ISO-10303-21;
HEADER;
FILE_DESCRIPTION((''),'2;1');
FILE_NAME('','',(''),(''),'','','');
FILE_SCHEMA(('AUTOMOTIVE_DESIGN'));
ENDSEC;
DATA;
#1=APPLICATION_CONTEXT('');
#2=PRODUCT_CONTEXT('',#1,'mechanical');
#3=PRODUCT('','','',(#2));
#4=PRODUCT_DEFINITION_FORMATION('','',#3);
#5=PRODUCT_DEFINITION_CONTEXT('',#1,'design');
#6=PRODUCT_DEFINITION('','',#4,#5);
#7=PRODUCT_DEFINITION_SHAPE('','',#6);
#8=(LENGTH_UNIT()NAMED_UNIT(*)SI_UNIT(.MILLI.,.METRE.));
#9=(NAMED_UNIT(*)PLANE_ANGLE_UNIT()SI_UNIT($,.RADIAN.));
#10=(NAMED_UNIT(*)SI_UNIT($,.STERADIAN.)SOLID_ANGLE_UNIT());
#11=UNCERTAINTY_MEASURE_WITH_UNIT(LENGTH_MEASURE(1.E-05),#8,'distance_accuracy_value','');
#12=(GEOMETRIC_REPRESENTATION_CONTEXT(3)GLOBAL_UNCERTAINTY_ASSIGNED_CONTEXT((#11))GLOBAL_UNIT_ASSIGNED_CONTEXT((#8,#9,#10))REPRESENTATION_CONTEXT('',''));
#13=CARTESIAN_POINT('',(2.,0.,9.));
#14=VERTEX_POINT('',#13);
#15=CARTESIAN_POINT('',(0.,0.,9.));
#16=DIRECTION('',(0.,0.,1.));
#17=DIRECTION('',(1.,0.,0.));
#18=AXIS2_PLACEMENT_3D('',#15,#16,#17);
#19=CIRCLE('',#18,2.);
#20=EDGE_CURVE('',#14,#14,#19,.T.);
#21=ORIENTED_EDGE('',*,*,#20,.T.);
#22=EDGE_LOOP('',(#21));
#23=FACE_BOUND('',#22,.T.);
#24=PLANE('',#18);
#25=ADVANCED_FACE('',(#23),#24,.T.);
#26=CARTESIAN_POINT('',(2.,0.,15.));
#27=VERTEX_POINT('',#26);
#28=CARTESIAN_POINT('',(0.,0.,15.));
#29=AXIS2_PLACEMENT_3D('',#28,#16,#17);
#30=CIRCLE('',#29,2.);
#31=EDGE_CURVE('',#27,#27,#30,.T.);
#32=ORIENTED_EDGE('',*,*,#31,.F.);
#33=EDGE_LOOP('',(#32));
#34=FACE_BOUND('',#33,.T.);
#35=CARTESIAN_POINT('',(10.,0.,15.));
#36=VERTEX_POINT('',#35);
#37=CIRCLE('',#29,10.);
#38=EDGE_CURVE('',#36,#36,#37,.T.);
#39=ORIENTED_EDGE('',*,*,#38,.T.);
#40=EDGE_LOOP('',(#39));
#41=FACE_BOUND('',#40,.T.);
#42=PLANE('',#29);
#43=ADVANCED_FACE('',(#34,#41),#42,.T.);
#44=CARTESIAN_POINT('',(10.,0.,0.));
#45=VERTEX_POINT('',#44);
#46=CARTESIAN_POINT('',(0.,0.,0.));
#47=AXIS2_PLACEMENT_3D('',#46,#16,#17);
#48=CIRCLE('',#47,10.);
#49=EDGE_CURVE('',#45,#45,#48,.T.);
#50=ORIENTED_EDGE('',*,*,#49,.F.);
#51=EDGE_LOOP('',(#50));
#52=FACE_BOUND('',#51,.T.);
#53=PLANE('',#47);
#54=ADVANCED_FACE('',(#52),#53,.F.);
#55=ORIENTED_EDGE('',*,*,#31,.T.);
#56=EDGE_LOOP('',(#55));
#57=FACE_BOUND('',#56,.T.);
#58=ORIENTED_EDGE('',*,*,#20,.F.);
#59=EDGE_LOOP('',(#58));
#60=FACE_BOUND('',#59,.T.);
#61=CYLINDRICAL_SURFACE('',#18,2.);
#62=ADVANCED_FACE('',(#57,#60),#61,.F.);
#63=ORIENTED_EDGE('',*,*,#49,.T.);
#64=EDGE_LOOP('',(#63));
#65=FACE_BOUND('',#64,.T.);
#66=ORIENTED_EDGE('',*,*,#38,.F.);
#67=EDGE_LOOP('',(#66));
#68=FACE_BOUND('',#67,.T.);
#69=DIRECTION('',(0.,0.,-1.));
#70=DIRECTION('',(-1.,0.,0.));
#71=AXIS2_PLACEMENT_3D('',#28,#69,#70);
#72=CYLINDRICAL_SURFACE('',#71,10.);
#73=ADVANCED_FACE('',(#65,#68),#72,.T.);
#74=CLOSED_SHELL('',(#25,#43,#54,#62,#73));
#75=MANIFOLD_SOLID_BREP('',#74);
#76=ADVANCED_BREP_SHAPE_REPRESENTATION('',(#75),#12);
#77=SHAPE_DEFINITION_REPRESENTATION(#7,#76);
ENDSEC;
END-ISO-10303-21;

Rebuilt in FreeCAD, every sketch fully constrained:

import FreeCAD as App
import Part
import Sketcher
from FreeCAD import Vector

doc = App.newDocument("Part")
body = doc.addObject("PartDesign::Body", "Body")

# Sketch on XY plane
sketch1 = body.newObject("Sketcher::SketchObject", "Sketch")
sketch1.AttachmentSupport = (doc.getObject("XY_Plane"), [""])
sketch1.MapMode = "FlatFace"
sketch1.addGeometry(Part.Circle(Vector(0, 0, 0), Vector(0, 0, 1), 10), False)
sketch1.addConstraint(Sketcher.Constraint("Coincident", 0, 3, -1, 1))
sketch1.addConstraint(Sketcher.Constraint("Diameter", 0, 20.0))
pad1 = body.newObject("PartDesign::Pad", "Pad")
pad1.Profile = sketch1
pad1.Length = 15

# Sketch on XY plane
sketch2 = body.newObject("Sketcher::SketchObject", "Sketch001")
sketch2.AttachmentSupport = (doc.getObject("XY_Plane"), [""])
sketch2.MapMode = "FlatFace"
sketch2.AttachmentOffset = App.Placement(Vector(0, 0, 15), App.Rotation())
sketch2.addGeometry(Part.Circle(Vector(0, 0, 0), Vector(0, 0, 1), 2), False)
sketch2.addConstraint(Sketcher.Constraint("Coincident", 0, 3, -1, 1))
sketch2.addConstraint(Sketcher.Constraint("Diameter", 0, 4.0))
pocket1 = body.newObject("PartDesign::Pocket", "Pocket")
pocket1.Profile = sketch2
pocket1.Length = 6

doc.recompute()
